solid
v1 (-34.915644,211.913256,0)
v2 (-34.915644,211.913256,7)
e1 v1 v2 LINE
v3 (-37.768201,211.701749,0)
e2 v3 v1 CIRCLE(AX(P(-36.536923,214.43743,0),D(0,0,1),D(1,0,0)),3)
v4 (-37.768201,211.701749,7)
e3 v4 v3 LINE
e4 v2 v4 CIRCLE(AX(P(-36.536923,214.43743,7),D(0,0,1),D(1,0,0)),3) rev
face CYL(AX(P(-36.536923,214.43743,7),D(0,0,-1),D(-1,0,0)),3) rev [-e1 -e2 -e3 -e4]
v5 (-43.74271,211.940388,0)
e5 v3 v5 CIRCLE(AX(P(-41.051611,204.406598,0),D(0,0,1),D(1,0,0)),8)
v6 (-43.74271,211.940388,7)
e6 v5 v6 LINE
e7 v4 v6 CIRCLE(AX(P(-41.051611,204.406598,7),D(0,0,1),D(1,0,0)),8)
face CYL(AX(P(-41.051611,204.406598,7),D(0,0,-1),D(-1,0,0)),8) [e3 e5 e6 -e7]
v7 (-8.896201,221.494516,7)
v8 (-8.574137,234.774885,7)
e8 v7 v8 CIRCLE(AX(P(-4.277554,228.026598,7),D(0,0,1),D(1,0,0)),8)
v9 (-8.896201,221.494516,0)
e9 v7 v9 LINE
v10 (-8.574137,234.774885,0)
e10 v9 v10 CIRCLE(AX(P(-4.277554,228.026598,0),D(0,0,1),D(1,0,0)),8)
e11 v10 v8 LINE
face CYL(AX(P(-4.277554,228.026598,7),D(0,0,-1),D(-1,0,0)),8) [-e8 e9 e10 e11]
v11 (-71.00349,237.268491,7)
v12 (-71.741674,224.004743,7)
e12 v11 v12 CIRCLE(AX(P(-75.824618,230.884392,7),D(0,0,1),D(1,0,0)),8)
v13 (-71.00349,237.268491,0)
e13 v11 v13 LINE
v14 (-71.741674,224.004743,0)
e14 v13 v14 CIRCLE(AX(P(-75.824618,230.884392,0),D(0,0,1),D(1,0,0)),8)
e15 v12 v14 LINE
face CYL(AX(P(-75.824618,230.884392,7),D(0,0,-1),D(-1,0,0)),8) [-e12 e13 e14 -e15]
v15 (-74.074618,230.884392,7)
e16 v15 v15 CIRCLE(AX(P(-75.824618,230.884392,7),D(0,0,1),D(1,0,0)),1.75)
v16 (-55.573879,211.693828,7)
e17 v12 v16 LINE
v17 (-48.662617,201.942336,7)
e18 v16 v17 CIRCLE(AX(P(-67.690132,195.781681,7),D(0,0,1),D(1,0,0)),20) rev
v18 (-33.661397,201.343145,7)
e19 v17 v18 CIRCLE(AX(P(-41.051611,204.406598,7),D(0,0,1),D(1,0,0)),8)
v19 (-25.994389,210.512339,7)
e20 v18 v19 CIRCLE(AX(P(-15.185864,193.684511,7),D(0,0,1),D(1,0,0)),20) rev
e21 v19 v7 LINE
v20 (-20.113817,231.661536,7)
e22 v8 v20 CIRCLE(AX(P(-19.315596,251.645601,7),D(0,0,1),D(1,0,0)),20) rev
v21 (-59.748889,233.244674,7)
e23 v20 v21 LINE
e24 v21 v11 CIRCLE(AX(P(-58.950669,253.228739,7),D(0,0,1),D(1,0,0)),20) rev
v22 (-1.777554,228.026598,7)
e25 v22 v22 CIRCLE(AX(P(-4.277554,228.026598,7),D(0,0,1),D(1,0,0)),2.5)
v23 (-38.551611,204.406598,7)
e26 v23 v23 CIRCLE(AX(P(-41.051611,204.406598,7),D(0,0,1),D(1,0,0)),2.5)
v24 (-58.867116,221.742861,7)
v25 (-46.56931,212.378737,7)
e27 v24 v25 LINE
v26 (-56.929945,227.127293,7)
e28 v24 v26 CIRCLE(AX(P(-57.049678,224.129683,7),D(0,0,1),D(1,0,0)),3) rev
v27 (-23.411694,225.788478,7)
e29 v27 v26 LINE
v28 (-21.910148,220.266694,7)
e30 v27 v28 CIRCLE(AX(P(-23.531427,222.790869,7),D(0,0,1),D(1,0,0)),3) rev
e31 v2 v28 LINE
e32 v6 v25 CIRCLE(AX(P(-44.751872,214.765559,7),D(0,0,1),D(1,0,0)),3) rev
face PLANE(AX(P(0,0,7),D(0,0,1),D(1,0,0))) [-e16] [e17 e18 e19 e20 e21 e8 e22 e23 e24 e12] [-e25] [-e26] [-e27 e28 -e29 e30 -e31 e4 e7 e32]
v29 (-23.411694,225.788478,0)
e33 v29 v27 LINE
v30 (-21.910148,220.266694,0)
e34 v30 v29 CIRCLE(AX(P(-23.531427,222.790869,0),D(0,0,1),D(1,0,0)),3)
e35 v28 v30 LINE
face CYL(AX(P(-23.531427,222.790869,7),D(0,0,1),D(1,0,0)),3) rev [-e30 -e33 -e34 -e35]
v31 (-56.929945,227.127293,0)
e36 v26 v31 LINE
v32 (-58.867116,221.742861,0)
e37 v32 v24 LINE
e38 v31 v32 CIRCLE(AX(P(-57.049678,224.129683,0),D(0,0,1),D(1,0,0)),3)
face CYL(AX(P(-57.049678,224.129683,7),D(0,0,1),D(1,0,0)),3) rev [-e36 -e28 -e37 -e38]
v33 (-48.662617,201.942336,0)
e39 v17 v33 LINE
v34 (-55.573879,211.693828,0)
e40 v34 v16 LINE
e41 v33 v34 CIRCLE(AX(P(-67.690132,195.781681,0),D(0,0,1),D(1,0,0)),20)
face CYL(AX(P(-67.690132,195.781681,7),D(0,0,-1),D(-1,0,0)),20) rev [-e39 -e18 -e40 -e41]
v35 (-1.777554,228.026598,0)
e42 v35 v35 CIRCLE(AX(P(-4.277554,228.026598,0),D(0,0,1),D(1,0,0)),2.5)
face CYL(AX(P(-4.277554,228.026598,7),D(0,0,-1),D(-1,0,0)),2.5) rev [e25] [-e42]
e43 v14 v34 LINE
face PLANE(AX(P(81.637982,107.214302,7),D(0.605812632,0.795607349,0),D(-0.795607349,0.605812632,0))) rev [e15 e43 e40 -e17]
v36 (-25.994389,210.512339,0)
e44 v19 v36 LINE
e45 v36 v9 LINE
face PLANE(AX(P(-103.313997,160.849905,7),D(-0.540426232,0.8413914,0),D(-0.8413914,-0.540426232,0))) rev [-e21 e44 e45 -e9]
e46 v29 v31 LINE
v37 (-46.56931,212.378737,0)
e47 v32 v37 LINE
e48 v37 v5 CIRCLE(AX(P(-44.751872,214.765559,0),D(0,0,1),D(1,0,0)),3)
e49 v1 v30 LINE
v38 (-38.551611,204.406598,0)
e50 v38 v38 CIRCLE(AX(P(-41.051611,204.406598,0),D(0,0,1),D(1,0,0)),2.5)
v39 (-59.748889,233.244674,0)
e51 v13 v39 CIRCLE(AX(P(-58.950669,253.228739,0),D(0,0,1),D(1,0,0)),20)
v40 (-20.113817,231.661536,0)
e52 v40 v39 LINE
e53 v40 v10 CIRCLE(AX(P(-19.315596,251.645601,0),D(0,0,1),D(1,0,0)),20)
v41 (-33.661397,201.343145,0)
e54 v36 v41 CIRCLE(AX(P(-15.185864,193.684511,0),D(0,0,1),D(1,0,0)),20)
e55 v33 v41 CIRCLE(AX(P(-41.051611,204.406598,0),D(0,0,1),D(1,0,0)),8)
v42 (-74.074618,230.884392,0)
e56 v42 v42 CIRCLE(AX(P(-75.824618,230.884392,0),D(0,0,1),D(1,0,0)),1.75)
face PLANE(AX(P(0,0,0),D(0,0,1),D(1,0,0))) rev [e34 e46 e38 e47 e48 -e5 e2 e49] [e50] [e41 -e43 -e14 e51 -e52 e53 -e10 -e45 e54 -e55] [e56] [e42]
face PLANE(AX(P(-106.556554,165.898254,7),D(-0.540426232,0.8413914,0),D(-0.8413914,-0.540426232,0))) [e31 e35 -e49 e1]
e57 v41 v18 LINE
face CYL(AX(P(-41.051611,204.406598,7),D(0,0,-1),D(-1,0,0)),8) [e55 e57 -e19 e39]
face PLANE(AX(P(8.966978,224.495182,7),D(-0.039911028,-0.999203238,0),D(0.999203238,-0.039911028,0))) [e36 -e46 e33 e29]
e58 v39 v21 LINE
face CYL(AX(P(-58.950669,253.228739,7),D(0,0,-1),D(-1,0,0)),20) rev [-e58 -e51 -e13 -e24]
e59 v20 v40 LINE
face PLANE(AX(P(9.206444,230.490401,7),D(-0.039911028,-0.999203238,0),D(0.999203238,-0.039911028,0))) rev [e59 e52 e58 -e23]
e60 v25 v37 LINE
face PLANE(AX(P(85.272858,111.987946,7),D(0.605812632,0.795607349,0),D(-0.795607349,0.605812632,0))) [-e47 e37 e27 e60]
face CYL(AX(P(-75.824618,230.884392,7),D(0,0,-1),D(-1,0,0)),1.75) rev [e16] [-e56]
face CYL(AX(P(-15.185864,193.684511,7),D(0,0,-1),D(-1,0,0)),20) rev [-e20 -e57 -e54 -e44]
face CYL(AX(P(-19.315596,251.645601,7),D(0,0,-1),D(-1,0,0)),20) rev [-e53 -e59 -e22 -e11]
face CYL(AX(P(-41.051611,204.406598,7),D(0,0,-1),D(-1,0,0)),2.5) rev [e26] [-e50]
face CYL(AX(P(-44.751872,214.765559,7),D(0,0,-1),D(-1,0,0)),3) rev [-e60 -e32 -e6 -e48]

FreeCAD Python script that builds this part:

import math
import FreeCAD as App
import Part
import Sketcher


def edges_at(feature, points):
    """Names of the edges that pass closest to the given points."""
    edges = feature.Shape.Edges
    near = lambda p: min(range(len(edges)), key=lambda i: edges[i].distToShape(Part.Vertex(*p))[0])
    return sorted({f"Edge{near(p) + 1}" for p in points})

doc = App.newDocument("Part")
body = doc.addObject("PartDesign::Body", "Body")

# Sketch on XY plane
sketch1 = body.newObject("Sketcher::SketchObject", "Sketch")
sketch1.AttachmentSupport = (doc.getObject("XY_Plane"), [""])
sketch1.MapMode = "FlatFace"
sketch1.addGeometry(Part.Circle(App.Vector(-75.8, 230.9, 0), App.Vector(0, 0, 1), 8), False)
sketch1.addGeometry(Part.Circle(App.Vector(-75.8, 230.9, 0), App.Vector(0, 0, 1), 1.8), False)
sketch1.addConstraint(Sketcher.Constraint("Coincident", 1, 3, 0, 3))
sketch1.addConstraint(Sketcher.Constraint("Diameter", 0, 16.0))
sketch1.addConstraint(Sketcher.Constraint("Diameter", 1, 3.5))
sketch1.addConstraint(Sketcher.Constraint("DistanceX", 0, 3, -1, 1, 75.824618))
sketch1.addConstraint(Sketcher.Constraint("DistanceY", -1, 1, 0, 3, 230.884392))
pad1 = body.newObject("PartDesign::Pad", "Pad")
pad1.Profile = sketch1
pad1.Length = 7
body2 = doc.addObject("PartDesign::Body", "Body001")

# Sketch on XY plane
sketch2 = body2.newObject("Sketcher::SketchObject", "Sketch001")
sketch2.AttachmentSupport = (doc.getObject("XY_Plane001"), [""])
sketch2.MapMode = "FlatFace"
sketch2.addGeometry(Part.Circle(App.Vector(-4.3, 228, 0), App.Vector(0, 0, 1), 8), False)
sketch2.addGeometry(Part.Circle(App.Vector(-4.3, 228, 0), App.Vector(0, 0, 1), 2.5), False)
sketch2.addConstraint(Sketcher.Constraint("Coincident", 1, 3, 0, 3))
sketch2.addConstraint(Sketcher.Constraint("Diameter", 0, 16.0))
sketch2.addConstraint(Sketcher.Constraint("Diameter", 1, 5.0))
sketch2.addConstraint(Sketcher.Constraint("DistanceY", -1, 1, 0, 3, 228.026598))
sketch2.addConstraint(Sketcher.Constraint("DistanceX", 0, 3, -1, 1, 4.277554))
pad2 = body2.newObject("PartDesign::Pad", "Pad001")
pad2.Profile = sketch2
pad2.Length = 7
body3 = doc.addObject("PartDesign::Body", "Body002")

# Sketch on XY plane
sketch3 = body3.newObject("Sketcher::SketchObject", "Sketch002")
sketch3.AttachmentSupport = (doc.getObject("XY_Plane002"), [""])
sketch3.MapMode = "FlatFace"
sketch3.addGeometry(Part.Circle(App.Vector(-41.1, 204.4, 0), App.Vector(0, 0, 1), 8), False)
sketch3.addGeometry(Part.Circle(App.Vector(-41.1, 204.4, 0), App.Vector(0, 0, 1), 2.5), False)
sketch3.addConstraint(Sketcher.Constraint("Coincident", 1, 3, 0, 3))
sketch3.addConstraint(Sketcher.Constraint("Diameter", 0, 16.0))
sketch3.addConstraint(Sketcher.Constraint("Diameter", 1, 5.0))
sketch3.addConstraint(Sketcher.Constraint("DistanceY", -1, 1, 0, 3, 204.406598))
sketch3.addConstraint(Sketcher.Constraint("DistanceX", 0, 3, -1, 1, 41.051611))
pad3 = body3.newObject("PartDesign::Pad", "Pad002")
pad3.Profile = sketch3
pad3.Length = 7
body.AllowCompound = True
doc.recompute()

boolean = body.newObject("PartDesign::Boolean", "Boolean")
boolean.Type = "Fuse"
boolean.addObjects([body2])
doc.recompute()

boolean2 = body.newObject("PartDesign::Boolean", "Boolean001")
boolean2.Type = "Fuse"
boolean2.addObjects([body3])

# Sketch on XY plane
sketch4 = body.newObject("Sketcher::SketchObject", "Sketch003")
sketch4.AttachmentSupport = (doc.getObject("XY_Plane"), [""])
sketch4.MapMode = "FlatFace"
sketch4.addGeometry(Part.ArcOfCircle(Part.Circle(App.Vector(-4.28, 228.03, 0), App.Vector(0, 0, 1), 8), math.radians(177.71), math.radians(190.69)), False)
sketch4.addGeometry(Part.ArcOfCircle(Part.Circle(App.Vector(-4.28, 228.03, 0), App.Vector(0, 0, 1), 8), math.radians(156), math.radians(178)), False)
sketch4.addGeometry(Part.LineSegment(App.Vector(-11.57, 231.32, 0), App.Vector(-68.29, 233.59, 0)), False)
sketch4.addGeometry(Part.ArcOfCircle(Part.Circle(App.Vector(-75.82, 230.88, 0), App.Vector(0, 0, 1), 8), math.radians(0), math.radians(19.74)), False)
sketch4.addGeometry(Part.ArcOfCircle(Part.Circle(App.Vector(-75.82, 230.88, 0), App.Vector(0, 0, 1), 8), math.radians(-2.29), math.radians(0)), False)
sketch4.addGeometry(Part.ArcOfCircle(Part.Circle(App.Vector(-75.82, 230.88, 0), App.Vector(0, 0, 1), 8), math.radians(-15.26), math.radians(-2.29)), False)
sketch4.addGeometry(Part.ArcOfCircle(Part.Circle(App.Vector(-75.82, 230.88, 0), App.Vector(0, 0, 1), 8), math.radians(-37), math.radians(-15)), False)
sketch4.addGeometry(Part.ArcOfCircle(Part.Circle(App.Vector(-75.82, 230.88, 0), App.Vector(0, 0, 1), 8), math.radians(-59), math.radians(-37)), False)
sketch4.addGeometry(Part.LineSegment(App.Vector(-71.74, 224, 0), App.Vector(-48.77, 206.51, 0)), False)
sketch4.addGeometry(Part.ArcOfCircle(Part.Circle(App.Vector(-41.05, 204.41, 0), App.Vector(0, 0, 1), 8), math.radians(143), math.radians(165)), False)
sketch4.addGeometry(Part.ArcOfCircle(Part.Circle(App.Vector(-41.05, 204.41, 0), App.Vector(0, 0, 1), 8), math.radians(121), math.radians(143)), False)
sketch4.addGeometry(Part.LineSegment(App.Vector(-45.13, 211.29, 0), App.Vector(-66.44, 227.51, 0)), False)
sketch4.addGeometry(Part.LineSegment(App.Vector(-66.44, 227.51, 0), App.Vector(-13.9, 225.41, 0)), False)
sketch4.addGeometry(Part.LineSegment(App.Vector(-13.9, 225.41, 0), App.Vector(-36.43, 210.94, 0)), False)
sketch4.addGeometry(Part.ArcOfCircle(Part.Circle(App.Vector(-41.05, 204.41, 0), App.Vector(0, 0, 1), 8), math.radians(33), math.radians(55)), False)
sketch4.addGeometry(Part.ArcOfCircle(Part.Circle(App.Vector(-41.05, 204.41, 0), App.Vector(0, 0, 1), 8), math.radians(11), math.radians(33)), False)
sketch4.addGeometry(Part.LineSegment(App.Vector(-33.19, 205.89, 0), App.Vector(-8.9, 221.49, 0)), False)
sketch4.addGeometry(Part.ArcOfCircle(Part.Circle(App.Vector(-4.28, 228.03, 0), App.Vector(0, 0, 1), 8), math.radians(-147), math.radians(-125)), False)
sketch4.addGeometry(Part.ArcOfCircle(Part.Circle(App.Vector(-4.28, 228.03, 0), App.Vector(0, 0, 1), 8), math.radians(-169), math.radians(-147)), False)
sketch4.addConstraint(Sketcher.Constraint("Tangent", 0, 1, 1, 2))
sketch4.addConstraint(Sketcher.Constraint("Coincident", 1, 1, 2, 1))
sketch4.addConstraint(Sketcher.Constraint("Coincident", 2, 2, 3, 2))
sketch4.addConstraint(Sketcher.Constraint("Tangent", 3, 1, 4, 2))
sketch4.addConstraint(Sketcher.Constraint("Tangent", 4, 1, 5, 2))
sketch4.addConstraint(Sketcher.Constraint("Tangent", 5, 1, 6, 2))
sketch4.addConstraint(Sketcher.Constraint("Tangent", 6, 1, 7, 2))
sketch4.addConstraint(Sketcher.Constraint("Coincident", 7, 1, 8, 1))
sketch4.addConstraint(Sketcher.Constraint("Coincident", 8, 2, 9, 2))
sketch4.addConstraint(Sketcher.Constraint("Tangent", 9, 1, 10, 2))
sketch4.addConstraint(Sketcher.Constraint("Coincident", 10, 1, 11, 1))
sketch4.addConstraint(Sketcher.Constraint("Coincident", 11, 2, 12, 1))
sketch4.addConstraint(Sketcher.Constraint("Coincident", 12, 2, 13, 1))
sketch4.addConstraint(Sketcher.Constraint("Coincident", 13, 2, 14, 2))
sketch4.addConstraint(Sketcher.Constraint("Tangent", 14, 1, 15, 2))
sketch4.addConstraint(Sketcher.Constraint("Coincident", 15, 1, 16, 1))
sketch4.addConstraint(Sketcher.Constraint("Coincident", 16, 2, 17, 2))
sketch4.addConstraint(Sketcher.Constraint("Tangent", 17, 1, 18, 2))
sketch4.addConstraint(Sketcher.Constraint("Tangent", 18, 1, 0, 2))
sketch4.addConstraint(Sketcher.Constraint("Coincident", 5, 3, 3, 3))
sketch4.addConstraint(Sketcher.Constraint("Coincident", 7, 3, 3, 3))
sketch4.addConstraint(Sketcher.Constraint("Coincident", 14, 3, 9, 3))
sketch4.addConstraint(Sketcher.Constraint("Coincident", 17, 3, 0, 3))
sketch4.addConstraint(Sketcher.Constraint("Equal", 0, 1))
sketch4.addConstraint(Sketcher.Constraint("Equal", 1, 3))
sketch4.addConstraint(Sketcher.Constraint("Equal", 7, 9))
sketch4.addConstraint(Sketcher.Constraint("Equal", 9, 10))
sketch4.addConstraint(Sketcher.Constraint("Equal", 10, 14))
sketch4.addConstraint(Sketcher.Constraint("Equal", 14, 15))
sketch4.addConstraint(Sketcher.Constraint("Parallel", 8, 11))
sketch4.addConstraint(Sketcher.Constraint("Parallel", 2, 12))
sketch4.addConstraint(Sketcher.Constraint("Parallel", 13, 16))
sketch4.addConstraint(Sketcher.Constraint("Horizontal", 7, 3, 3, 1))
sketch4.addConstraint(Sketcher.Constraint("Equal", 11, 13))
sketch4.addConstraint(Sketcher.Constraint("Equal", 8, 16))
sketch4.addConstraint(Sketcher.Constraint("Radius", 0, 8.0))
sketch4.addConstraint(Sketcher.Constraint("DistanceY", 9, 3, 0, 3, 23.62))
sketch4.addConstraint(Sketcher.Constraint("DistanceY", -1, 1, 0, 3, 228.026598))
sketch4.addConstraint(Sketcher.Constraint("DistanceX", 5, 1, -1, 1, 68.106798))
sketch4.addConstraint(Sketcher.Constraint("DistanceY", -1, 1, 9, 1, 209.253099))
sketch4.addConstraint(Sketcher.Constraint("DistanceX", 16, 2, -1, 1, 8.896201))
sketch4.addConstraint(Sketcher.Constraint("DistanceY", 6, 1, 3, 1, 4.846501))
sketch4.addConstraint(Sketcher.Constraint("DistanceY", 17, 1, 0, 1, 4.642698))
sketch4.addConstraint(Sketcher.Constraint("Distance", 2, 56.771719))
sketch4.addConstraint(Sketcher.Constraint("Distance", 11, 26.77526))
sketch4.addConstraint(Sketcher.Constraint("DistanceX", 3, 3, -1, 1, 75.824618))
sketch4.addConstraint(Sketcher.Constraint("DistanceX", 9, 3, -1, 1, 41.051611))
sketch4.addConstraint(Sketcher.Constraint("DistanceX", 0, 1, -1, 1, 12.27118))
sketch4.addConstraint(Sketcher.Constraint("DistanceX", 1, 1, -1, 1, 11.56811))
sketch4.addConstraint(Sketcher.Constraint("DistanceY", -1, 1, 6, 1, 226.037891))
sketch4.addConstraint(Sketcher.Constraint("DistanceX", 8, 2, -1, 1, 48.76943))
sketch4.addConstraint(Sketcher.Constraint("DistanceX", 11, 2, -1, 1, 66.437148))
sketch4.addConstraint(Sketcher.Constraint("DistanceX", 12, 2, -1, 1, 13.90449))
sketch4.addConstraint(Sketcher.Constraint("DistanceY", -1, 1, 13, 2, 210.938681))
sketch4.addConstraint(Sketcher.Constraint("DistanceX", 14, 1, -1, 1, 34.320479))
sketch4.addConstraint(Sketcher.Constraint("DistanceX", 18, 1, -1, 1, 12.138758))
sketch4.addConstraint(Sketcher.Constraint("DistanceY", 4, 1, 3, 1, 0.319288))
pad4 = body.newObject("PartDesign::Pad", "Pad003")
pad4.Profile = sketch4
pad4.Length = 7
doc.recompute()

fillet = body.newObject("PartDesign::Fillet", "Fillet")
fillet.Base = (pad4, edges_at(pad4, [
    (-45.135, 211.286, 3.5),
    (-66.437, 227.507, 3.5),
    (-13.904, 225.409, 3.5),
    (-36.433, 210.939, 3.5),
]))
fillet.Radius = 3
doc.recompute()

fillet2 = body.newObject("PartDesign::Fillet", "Fillet001")
fillet2.Base = (fillet, edges_at(fillet, [(-11.568, 231.32, 3.5), (-68.295, 233.586, 3.5)]))
fillet2.Radius = 20
doc.recompute()

fillet3 = body.newObject("PartDesign::Fillet", "Fillet002")
fillet3.Base = (fillet2, edges_at(fillet2, [(-48.769, 206.513, 3.5), (-33.19, 205.89, 3.5)]))
fillet3.Radius = 20

doc.recompute()
